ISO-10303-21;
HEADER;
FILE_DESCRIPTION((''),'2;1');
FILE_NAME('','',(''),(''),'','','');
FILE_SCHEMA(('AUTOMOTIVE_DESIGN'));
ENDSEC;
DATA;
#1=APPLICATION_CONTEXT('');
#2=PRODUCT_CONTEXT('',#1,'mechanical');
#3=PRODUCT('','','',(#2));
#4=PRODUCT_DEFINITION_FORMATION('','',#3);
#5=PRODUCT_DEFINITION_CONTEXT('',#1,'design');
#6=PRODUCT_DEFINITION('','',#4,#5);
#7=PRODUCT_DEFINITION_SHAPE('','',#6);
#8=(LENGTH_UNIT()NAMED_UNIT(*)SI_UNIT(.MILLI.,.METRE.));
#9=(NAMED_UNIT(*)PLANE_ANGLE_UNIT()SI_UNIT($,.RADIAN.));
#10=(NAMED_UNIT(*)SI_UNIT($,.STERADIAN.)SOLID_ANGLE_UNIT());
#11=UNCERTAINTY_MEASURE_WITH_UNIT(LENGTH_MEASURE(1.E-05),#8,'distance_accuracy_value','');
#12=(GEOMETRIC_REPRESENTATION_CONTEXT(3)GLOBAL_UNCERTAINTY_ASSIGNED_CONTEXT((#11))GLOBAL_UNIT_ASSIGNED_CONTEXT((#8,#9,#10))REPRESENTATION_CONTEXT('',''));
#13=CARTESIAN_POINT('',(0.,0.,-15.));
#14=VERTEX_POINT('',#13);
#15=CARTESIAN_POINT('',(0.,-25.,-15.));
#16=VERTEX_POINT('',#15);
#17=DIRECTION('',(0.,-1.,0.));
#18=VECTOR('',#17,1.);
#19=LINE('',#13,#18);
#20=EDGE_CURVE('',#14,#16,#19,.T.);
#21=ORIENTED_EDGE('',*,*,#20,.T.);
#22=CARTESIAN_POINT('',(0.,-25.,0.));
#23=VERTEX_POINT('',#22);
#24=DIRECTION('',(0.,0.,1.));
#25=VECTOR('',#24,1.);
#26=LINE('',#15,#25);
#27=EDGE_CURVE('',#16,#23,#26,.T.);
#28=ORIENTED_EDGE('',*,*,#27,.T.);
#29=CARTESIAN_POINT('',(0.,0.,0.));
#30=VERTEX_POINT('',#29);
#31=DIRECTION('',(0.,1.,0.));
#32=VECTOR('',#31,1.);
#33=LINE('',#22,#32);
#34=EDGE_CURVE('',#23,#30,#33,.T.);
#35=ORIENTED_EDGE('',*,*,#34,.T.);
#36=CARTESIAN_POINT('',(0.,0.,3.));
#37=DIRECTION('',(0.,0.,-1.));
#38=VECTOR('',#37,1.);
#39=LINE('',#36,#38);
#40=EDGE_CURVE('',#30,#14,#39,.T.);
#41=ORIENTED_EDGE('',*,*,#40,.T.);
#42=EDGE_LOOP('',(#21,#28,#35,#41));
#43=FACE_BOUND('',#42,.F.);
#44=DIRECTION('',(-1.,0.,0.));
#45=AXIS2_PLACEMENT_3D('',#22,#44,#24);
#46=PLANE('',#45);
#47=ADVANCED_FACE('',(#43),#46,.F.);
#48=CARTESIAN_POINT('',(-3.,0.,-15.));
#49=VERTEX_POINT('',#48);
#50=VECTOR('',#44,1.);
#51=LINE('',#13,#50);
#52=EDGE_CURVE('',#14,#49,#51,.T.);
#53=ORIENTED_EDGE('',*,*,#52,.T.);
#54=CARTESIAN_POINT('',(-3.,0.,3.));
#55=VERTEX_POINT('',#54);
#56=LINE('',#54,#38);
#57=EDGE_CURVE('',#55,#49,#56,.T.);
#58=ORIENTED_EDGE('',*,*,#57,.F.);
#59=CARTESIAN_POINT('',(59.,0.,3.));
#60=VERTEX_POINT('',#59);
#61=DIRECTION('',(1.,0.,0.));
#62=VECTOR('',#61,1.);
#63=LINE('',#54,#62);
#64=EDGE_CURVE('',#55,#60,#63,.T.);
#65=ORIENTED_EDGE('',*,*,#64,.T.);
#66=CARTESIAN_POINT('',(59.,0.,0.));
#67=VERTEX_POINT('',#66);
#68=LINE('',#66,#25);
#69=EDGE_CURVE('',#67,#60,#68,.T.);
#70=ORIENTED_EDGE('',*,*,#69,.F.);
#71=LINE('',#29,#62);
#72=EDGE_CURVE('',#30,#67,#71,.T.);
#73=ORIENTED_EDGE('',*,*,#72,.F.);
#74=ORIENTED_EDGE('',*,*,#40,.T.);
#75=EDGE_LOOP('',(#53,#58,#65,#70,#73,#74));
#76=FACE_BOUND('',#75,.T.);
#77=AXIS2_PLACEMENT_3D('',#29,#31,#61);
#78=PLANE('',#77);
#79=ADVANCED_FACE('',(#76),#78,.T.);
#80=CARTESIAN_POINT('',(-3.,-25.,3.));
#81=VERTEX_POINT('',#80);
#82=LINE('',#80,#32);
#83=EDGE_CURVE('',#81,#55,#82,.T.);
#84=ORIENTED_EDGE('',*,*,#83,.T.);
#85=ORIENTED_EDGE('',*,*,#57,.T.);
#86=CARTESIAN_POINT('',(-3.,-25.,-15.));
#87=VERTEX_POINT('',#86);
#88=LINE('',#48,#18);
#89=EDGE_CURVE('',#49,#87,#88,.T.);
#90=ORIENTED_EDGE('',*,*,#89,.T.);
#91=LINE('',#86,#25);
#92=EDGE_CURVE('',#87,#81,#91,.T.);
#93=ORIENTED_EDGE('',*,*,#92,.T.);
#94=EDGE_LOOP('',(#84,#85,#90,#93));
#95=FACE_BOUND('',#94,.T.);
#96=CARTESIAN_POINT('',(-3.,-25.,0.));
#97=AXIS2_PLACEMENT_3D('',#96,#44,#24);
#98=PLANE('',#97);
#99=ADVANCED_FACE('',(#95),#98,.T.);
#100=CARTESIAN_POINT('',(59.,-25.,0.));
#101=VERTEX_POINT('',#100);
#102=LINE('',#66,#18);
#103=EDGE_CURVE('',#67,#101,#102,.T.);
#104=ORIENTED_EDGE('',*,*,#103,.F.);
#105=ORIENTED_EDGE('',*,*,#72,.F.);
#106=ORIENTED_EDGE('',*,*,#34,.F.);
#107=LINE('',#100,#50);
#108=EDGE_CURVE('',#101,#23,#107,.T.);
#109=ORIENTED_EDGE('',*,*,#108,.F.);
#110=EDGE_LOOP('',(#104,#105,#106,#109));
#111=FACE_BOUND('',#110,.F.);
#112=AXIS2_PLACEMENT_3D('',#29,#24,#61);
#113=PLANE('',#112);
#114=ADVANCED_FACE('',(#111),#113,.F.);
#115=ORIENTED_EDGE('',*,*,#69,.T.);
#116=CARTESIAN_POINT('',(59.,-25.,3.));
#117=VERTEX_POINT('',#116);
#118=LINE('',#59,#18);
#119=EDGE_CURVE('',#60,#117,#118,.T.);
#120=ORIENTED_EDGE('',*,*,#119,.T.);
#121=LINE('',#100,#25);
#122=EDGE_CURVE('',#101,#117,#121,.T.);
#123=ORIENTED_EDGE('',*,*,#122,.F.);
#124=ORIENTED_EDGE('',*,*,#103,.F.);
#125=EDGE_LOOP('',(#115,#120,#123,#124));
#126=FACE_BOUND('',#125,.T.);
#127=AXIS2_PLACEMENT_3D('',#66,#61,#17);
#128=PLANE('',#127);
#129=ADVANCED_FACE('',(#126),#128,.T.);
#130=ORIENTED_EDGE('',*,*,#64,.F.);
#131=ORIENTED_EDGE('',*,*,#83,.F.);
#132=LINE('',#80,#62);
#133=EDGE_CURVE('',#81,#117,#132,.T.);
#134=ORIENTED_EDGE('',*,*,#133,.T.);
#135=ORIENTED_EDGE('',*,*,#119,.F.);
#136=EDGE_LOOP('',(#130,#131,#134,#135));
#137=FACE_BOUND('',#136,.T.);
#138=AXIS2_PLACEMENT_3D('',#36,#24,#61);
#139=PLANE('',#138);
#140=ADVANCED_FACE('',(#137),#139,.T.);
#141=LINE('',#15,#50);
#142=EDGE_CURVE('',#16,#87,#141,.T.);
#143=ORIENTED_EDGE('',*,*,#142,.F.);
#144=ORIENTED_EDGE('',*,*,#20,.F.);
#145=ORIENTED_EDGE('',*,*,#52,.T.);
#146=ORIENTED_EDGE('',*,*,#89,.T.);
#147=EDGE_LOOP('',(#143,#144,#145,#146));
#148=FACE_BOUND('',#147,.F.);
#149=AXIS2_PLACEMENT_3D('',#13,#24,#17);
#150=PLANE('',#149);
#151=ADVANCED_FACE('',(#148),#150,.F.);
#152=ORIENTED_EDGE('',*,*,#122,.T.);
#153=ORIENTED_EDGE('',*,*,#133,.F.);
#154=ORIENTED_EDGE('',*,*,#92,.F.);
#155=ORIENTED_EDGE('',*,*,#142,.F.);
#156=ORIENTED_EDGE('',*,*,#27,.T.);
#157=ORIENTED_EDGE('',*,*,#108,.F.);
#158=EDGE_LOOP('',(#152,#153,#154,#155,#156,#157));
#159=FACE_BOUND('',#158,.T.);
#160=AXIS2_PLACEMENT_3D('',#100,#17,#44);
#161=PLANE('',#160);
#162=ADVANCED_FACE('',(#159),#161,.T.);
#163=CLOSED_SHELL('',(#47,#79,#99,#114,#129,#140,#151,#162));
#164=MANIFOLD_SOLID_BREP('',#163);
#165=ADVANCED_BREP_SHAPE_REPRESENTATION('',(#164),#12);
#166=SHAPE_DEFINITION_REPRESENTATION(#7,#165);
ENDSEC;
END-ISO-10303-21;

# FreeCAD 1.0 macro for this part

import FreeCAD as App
import Part
import Sketcher
from FreeCAD import Vector


def add_polygon(sketch, points):
    """Adds a closed chain of lines whose ends are joined by coincident constraints."""
    first, n = sketch.GeometryCount, len(points)
    for a, b in zip(points, points[1:] + points[:1]):
        sketch.addGeometry(Part.LineSegment(App.Vector(*a, 0), App.Vector(*b, 0)), False)
    for i in range(n):
        sketch.addConstraint(Sketcher.Constraint("Coincident", first + i, 2, first + (i + 1) % n, 1))

doc = App.newDocument("Part")
params = doc.addObject("Spreadsheet::Sheet", "Params")
for row, (alias, value) in enumerate([
    ("sketch1_width", "59 mm"),
    ("sketch1_height", "25 mm"),
    ("pad1_length", "3 mm"),
    ("sketch2_height", "18 mm"),
    ("sketch2_width", "25 mm"),
    ("pad2_length", "3 mm"),
], start=1):
    params.set(f"A{row}", alias)
    params.set(f"B{row}", "=" + value)
    params.setAlias(f"B{row}", alias)

body = doc.addObject("PartDesign::Body", "Body")

sketch1 = doc.addObject("Sketcher::SketchObject", "Sketch")
body.addObject(sketch1)
sketch1.AttachmentSupport = (doc.XY_Plane, [""])
sketch1.MapMode = "FlatFace"
add_polygon(sketch1, [(59, 0), (0, 0), (0, -25), (59, -25)])
sketch1.addConstraint([
    Sketcher.Constraint("Horizontal", 0),
    Sketcher.Constraint("Vertical", 1),
    Sketcher.Constraint("Horizontal", 2),
    Sketcher.Constraint("Vertical", 3),
    Sketcher.Constraint("Coincident", 0, 2, -1, 1),
    Sketcher.Constraint("DistanceX", 0, 2, 0, 1, 59.0),
    Sketcher.Constraint("DistanceY", 1, 2, 1, 1, 25.0),
])
sketch1.setExpression("Constraints[9]", "Params.sketch1_width")
sketch1.setExpression("Constraints[10]", "Params.sketch1_height")
pad1 = doc.addObject("PartDesign::Pad", "Pad")
body.addObject(pad1)
pad1.Profile = sketch1
pad1.setExpression("Length", "Params.pad1_length")

sketch2 = doc.addObject("Sketcher::SketchObject", "Sketch001")
body.addObject(sketch2)
sketch2.AttachmentSupport = (doc.YZ_Plane, [""])
sketch2.MapMode = "FlatFace"
add_polygon(sketch2, [(-25, -15), (-25, 3), (0, 3), (0, -15)])
sketch2.addConstraint([
    Sketcher.Constraint("Vertical", 0),
    Sketcher.Constraint("Horizontal", 1),
    Sketcher.Constraint("Vertical", 2),
    Sketcher.Constraint("Horizontal", 3),
    Sketcher.Constraint("PointOnObject", 1, 2, -2),
    Sketcher.Constraint("DistanceY", 0, 1, 0, 2, 18.0),
    Sketcher.Constraint("DistanceX", 1, 1, 1, 2, 25.0),
    Sketcher.Constraint("DistanceY", -1, 1, 0, 2, 3.0),
])
sketch2.setExpression("Constraints[9]", "Params.sketch2_height")
sketch2.setExpression("Constraints[10]", "Params.sketch2_width")
pad2 = doc.addObject("PartDesign::Pad", "Pad001")
body.addObject(pad2)
pad2.Profile = sketch2
pad2.setExpression("Length", "Params.pad2_length")
pad2.Reversed = True

doc.recompute()
